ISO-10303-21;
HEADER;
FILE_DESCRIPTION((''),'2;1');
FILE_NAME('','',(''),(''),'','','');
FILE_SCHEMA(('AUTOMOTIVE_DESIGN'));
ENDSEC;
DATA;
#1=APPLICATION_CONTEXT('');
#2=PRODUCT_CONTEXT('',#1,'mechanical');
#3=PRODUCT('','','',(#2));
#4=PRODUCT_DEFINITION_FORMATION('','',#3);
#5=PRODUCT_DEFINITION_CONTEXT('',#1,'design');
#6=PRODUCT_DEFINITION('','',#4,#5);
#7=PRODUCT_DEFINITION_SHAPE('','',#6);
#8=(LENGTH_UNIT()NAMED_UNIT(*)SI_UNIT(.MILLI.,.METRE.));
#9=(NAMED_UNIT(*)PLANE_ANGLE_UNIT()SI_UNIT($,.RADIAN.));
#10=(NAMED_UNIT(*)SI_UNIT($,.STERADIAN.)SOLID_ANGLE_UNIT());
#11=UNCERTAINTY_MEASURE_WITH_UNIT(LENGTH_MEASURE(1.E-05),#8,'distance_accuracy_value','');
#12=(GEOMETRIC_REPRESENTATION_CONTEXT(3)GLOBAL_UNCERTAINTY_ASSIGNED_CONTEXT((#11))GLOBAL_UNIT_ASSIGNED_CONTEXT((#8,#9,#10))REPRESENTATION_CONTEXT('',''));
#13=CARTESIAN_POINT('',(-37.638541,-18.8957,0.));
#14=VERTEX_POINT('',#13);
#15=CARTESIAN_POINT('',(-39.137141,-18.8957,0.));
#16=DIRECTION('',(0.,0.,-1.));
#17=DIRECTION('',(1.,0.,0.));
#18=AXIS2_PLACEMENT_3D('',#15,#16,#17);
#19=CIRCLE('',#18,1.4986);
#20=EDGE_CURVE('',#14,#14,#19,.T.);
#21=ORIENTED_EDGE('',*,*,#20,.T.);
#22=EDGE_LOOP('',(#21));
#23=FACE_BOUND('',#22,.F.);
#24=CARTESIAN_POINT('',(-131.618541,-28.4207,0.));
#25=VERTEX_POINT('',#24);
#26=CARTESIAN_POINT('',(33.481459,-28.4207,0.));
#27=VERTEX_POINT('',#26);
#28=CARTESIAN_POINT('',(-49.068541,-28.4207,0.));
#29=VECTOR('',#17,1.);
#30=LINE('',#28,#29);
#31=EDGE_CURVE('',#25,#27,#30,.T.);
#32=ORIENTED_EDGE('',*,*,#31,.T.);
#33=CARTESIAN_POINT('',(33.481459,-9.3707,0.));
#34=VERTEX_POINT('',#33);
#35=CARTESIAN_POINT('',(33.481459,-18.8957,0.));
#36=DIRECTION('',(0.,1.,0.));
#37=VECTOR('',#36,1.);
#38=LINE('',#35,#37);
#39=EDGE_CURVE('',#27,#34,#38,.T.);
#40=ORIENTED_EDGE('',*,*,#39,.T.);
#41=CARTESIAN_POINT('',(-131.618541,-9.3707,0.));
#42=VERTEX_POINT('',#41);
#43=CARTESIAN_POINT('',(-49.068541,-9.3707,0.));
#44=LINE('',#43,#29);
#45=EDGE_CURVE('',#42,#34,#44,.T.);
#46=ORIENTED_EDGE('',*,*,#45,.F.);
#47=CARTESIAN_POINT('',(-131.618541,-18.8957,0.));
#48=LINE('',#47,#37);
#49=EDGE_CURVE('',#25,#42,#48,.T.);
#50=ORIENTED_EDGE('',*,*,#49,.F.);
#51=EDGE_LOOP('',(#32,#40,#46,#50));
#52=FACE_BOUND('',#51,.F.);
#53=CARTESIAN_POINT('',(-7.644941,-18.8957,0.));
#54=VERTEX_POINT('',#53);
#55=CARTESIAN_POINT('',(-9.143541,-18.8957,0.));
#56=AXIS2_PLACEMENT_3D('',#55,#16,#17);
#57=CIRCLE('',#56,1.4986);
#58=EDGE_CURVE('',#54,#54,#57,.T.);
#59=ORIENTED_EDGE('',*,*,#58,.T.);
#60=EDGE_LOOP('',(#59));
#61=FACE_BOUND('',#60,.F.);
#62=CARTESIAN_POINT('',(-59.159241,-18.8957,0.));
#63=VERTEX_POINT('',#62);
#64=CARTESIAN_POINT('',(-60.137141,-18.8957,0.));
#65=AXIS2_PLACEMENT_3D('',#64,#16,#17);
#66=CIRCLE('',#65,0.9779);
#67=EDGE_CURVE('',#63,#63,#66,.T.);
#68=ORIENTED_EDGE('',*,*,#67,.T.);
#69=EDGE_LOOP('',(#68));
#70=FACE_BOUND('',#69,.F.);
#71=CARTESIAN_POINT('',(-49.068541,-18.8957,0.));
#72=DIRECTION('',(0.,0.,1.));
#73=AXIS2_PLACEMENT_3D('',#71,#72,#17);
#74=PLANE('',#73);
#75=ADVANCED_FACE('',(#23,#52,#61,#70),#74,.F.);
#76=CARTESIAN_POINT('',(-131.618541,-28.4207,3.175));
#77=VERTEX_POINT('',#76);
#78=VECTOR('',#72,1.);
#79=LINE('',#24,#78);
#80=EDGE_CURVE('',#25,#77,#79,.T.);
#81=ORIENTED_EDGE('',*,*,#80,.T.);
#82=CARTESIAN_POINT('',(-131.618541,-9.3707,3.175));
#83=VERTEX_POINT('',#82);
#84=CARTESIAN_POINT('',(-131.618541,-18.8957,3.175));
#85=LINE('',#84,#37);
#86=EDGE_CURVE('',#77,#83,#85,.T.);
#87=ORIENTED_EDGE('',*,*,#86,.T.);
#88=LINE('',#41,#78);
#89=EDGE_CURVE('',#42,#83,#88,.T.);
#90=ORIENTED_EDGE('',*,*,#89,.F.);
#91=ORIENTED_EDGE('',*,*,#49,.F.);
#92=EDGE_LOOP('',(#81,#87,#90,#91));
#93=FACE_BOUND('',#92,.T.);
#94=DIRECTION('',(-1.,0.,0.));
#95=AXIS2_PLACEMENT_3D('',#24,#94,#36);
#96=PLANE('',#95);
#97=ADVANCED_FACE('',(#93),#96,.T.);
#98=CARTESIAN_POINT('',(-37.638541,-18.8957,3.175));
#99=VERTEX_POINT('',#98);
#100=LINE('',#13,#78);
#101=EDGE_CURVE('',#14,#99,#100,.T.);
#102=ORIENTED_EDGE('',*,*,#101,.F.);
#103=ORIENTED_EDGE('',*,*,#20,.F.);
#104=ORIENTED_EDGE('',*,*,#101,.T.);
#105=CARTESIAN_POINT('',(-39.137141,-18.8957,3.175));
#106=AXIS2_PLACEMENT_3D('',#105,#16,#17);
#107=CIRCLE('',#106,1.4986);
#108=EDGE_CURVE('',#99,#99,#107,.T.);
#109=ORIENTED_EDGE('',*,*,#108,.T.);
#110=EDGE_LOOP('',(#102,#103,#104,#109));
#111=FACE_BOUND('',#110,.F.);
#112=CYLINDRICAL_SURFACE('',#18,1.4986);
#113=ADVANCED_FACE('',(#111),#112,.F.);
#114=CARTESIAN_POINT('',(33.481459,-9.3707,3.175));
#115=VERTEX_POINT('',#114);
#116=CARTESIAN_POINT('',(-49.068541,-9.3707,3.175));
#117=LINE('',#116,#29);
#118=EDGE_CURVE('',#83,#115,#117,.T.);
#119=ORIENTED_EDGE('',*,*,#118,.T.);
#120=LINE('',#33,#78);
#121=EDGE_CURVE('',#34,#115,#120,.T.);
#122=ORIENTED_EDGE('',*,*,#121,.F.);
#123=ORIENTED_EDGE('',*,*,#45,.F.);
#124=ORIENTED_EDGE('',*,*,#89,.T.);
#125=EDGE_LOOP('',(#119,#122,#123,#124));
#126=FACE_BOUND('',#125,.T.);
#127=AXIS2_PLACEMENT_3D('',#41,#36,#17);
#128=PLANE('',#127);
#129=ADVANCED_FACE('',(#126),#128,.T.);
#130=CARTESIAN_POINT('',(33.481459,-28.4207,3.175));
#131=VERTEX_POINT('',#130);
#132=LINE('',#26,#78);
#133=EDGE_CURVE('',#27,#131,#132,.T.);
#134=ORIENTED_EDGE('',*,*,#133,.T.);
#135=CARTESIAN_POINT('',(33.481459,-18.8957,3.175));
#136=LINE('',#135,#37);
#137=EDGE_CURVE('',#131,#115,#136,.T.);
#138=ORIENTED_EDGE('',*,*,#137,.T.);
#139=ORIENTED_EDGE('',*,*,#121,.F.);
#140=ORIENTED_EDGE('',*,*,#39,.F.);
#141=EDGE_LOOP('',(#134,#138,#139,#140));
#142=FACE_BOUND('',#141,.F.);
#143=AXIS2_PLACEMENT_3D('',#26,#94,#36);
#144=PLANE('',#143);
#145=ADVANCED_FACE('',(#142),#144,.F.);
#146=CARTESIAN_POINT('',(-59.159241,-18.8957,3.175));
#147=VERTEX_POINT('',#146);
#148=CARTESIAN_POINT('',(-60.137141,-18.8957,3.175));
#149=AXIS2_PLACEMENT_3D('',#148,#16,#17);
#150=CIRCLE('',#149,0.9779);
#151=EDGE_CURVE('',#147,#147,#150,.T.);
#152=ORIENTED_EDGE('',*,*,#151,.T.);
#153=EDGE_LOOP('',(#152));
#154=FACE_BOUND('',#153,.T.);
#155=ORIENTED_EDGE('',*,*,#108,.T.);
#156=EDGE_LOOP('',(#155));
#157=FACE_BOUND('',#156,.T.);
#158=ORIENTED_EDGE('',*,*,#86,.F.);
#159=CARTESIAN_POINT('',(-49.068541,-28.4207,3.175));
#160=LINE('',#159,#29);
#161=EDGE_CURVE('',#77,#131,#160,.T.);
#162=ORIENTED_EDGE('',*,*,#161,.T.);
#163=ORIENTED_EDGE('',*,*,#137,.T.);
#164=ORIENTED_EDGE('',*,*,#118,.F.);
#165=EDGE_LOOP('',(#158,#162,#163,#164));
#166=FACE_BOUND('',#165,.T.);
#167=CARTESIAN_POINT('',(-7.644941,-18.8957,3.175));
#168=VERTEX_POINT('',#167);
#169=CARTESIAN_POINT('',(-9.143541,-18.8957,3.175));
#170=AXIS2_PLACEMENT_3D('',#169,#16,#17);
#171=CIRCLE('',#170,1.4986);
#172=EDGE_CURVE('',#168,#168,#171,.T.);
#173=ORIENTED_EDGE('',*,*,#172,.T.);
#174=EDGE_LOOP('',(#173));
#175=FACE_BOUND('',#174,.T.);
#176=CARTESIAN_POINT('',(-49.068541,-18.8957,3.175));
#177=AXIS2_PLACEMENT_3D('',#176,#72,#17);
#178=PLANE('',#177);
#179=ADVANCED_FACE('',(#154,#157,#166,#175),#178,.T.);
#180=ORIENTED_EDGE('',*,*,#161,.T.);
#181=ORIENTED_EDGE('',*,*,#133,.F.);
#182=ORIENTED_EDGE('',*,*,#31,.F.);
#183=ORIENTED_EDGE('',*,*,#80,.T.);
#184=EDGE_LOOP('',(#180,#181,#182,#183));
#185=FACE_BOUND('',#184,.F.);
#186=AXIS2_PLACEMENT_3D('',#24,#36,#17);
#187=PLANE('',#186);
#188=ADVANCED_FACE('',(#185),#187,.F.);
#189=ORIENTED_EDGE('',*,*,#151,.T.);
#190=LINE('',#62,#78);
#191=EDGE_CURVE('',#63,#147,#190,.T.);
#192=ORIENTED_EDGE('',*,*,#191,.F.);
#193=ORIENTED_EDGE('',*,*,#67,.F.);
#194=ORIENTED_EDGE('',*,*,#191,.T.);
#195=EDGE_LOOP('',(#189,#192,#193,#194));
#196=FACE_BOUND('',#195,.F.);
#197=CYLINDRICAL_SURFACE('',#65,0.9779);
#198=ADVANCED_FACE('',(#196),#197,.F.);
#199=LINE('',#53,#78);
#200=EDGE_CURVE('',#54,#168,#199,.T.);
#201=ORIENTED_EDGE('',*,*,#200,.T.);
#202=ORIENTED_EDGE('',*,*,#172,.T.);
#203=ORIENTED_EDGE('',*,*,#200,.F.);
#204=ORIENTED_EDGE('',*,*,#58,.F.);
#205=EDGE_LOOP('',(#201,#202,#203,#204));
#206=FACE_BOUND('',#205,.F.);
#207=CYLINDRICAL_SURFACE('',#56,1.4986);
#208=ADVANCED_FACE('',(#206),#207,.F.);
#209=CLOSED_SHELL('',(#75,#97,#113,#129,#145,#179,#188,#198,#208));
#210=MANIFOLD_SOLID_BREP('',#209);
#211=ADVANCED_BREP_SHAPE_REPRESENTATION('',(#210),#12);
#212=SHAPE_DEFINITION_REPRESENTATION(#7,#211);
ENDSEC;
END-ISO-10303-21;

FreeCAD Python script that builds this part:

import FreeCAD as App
import Part
import Sketcher

V = App.Vector
Q = App.Units.Quantity


def add_polygon(sketch, points):
    """Adds a closed chain of lines whose ends are joined by coincident constraints."""
    first, n = sketch.GeometryCount, len(points)
    for a, b in zip(points, points[1:] + points[:1]):
        sketch.addGeometry(Part.LineSegment(App.Vector(*a, 0), App.Vector(*b, 0)), False)
    for i in range(n):
        sketch.addConstraint(Sketcher.Constraint("Coincident", first + i, 2, first + (i + 1) % n, 1))

doc = App.newDocument("Part")
body = doc.addObject("PartDesign::Body", "Body")

# Sketch on XY plane
sketch1 = body.newObject("Sketcher::SketchObject", "Sketch")
sketch1.AttachmentSupport = (doc.getObject("XY_Plane"), [""])
sketch1.MapMode = "FlatFace"
add_polygon(sketch1, [(-132, -9), (-132, -28), (33, -28), (33, -9)])  # lines 0-3
sketch1.addConstraint([
    Sketcher.Constraint("Vertical", 0),
    Sketcher.Constraint("Horizontal", 1),
    Sketcher.Constraint("Vertical", 2),
    Sketcher.Constraint("Horizontal", 3),
    Sketcher.Constraint("DistanceX", 1, 1, 1, 2, Q("6.5 in")),
    Sketcher.Constraint("DistanceY", 0, 2, 0, 1, Q("0.75 in")),
    Sketcher.Constraint("DistanceY", 0, 2, -1, 1, 28.4207),
    Sketcher.Constraint("DistanceX", 0, 2, -1, 1, 131.618541),
])
pad1 = body.newObject("PartDesign::Pad", "Pad")
pad1.Profile = sketch1
pad1.Length = Q("0.125 in")

# Sketch on XY plane
sketch2 = body.newObject("Sketcher::SketchObject", "Sketch001")
sketch2.AttachmentSupport = (doc.getObject("XY_Plane"), [""])
sketch2.MapMode = "FlatFace"
sketch2.addGeometry(Part.Circle(V(-39.1, -18.9, 0), V(0, 0, 1), 1.5), False)
sketch2.addConstraint([
    Sketcher.Constraint("Diameter", 0, Q("0.118 in")),
    Sketcher.Constraint("DistanceY", 0, 3, -1, 1, 18.8957),
    Sketcher.Constraint("DistanceX", 0, 3, -1, 1, 39.137141),
])
pocket1 = body.newObject("PartDesign::Pocket", "Pocket")
pocket1.Profile = sketch2
pocket1.Length = Q("1 in")
pocket1.Reversed = True

# Sketch on XY plane
sketch3 = body.newObject("Sketcher::SketchObject", "Sketch002")
sketch3.AttachmentSupport = (doc.getObject("XY_Plane"), [""])
sketch3.MapMode = "FlatFace"
sketch3.addGeometry(Part.Circle(V(-60.1, -18.9, 0), V(0, 0, 1), 1), False)
sketch3.addConstraint([
    Sketcher.Constraint("Diameter", 0, Q("0.077 in")),
    Sketcher.Constraint("DistanceY", 0, 3, -1, 1, 18.8957),
    Sketcher.Constraint("DistanceX", 0, 3, -1, 1, 60.137141),
])
pocket2 = body.newObject("PartDesign::Pocket", "Pocket001")
pocket2.Profile = sketch3
pocket2.Length = Q("1 in")
pocket2.Reversed = True

# Sketch on XY plane
sketch4 = body.newObject("Sketcher::SketchObject", "Sketch003")
sketch4.AttachmentSupport = (doc.getObject("XY_Plane"), [""])
sketch4.MapMode = "FlatFace"
sketch4.addGeometry(Part.Circle(V(-9.1, -18.9, 0), V(0, 0, 1), 1.5), False)
sketch4.addConstraint([
    Sketcher.Constraint("Diameter", 0, Q("0.118 in")),
    Sketcher.Constraint("DistanceY", 0, 3, -1, 1, 18.8957),
    Sketcher.Constraint("DistanceX", 0, 3, -1, 1, 9.143541),
])
pocket3 = body.newObject("PartDesign::Pocket", "Pocket002")
pocket3.Profile = sketch4
pocket3.Length = Q("1 in")
pocket3.Reversed = True

doc.recompute()
